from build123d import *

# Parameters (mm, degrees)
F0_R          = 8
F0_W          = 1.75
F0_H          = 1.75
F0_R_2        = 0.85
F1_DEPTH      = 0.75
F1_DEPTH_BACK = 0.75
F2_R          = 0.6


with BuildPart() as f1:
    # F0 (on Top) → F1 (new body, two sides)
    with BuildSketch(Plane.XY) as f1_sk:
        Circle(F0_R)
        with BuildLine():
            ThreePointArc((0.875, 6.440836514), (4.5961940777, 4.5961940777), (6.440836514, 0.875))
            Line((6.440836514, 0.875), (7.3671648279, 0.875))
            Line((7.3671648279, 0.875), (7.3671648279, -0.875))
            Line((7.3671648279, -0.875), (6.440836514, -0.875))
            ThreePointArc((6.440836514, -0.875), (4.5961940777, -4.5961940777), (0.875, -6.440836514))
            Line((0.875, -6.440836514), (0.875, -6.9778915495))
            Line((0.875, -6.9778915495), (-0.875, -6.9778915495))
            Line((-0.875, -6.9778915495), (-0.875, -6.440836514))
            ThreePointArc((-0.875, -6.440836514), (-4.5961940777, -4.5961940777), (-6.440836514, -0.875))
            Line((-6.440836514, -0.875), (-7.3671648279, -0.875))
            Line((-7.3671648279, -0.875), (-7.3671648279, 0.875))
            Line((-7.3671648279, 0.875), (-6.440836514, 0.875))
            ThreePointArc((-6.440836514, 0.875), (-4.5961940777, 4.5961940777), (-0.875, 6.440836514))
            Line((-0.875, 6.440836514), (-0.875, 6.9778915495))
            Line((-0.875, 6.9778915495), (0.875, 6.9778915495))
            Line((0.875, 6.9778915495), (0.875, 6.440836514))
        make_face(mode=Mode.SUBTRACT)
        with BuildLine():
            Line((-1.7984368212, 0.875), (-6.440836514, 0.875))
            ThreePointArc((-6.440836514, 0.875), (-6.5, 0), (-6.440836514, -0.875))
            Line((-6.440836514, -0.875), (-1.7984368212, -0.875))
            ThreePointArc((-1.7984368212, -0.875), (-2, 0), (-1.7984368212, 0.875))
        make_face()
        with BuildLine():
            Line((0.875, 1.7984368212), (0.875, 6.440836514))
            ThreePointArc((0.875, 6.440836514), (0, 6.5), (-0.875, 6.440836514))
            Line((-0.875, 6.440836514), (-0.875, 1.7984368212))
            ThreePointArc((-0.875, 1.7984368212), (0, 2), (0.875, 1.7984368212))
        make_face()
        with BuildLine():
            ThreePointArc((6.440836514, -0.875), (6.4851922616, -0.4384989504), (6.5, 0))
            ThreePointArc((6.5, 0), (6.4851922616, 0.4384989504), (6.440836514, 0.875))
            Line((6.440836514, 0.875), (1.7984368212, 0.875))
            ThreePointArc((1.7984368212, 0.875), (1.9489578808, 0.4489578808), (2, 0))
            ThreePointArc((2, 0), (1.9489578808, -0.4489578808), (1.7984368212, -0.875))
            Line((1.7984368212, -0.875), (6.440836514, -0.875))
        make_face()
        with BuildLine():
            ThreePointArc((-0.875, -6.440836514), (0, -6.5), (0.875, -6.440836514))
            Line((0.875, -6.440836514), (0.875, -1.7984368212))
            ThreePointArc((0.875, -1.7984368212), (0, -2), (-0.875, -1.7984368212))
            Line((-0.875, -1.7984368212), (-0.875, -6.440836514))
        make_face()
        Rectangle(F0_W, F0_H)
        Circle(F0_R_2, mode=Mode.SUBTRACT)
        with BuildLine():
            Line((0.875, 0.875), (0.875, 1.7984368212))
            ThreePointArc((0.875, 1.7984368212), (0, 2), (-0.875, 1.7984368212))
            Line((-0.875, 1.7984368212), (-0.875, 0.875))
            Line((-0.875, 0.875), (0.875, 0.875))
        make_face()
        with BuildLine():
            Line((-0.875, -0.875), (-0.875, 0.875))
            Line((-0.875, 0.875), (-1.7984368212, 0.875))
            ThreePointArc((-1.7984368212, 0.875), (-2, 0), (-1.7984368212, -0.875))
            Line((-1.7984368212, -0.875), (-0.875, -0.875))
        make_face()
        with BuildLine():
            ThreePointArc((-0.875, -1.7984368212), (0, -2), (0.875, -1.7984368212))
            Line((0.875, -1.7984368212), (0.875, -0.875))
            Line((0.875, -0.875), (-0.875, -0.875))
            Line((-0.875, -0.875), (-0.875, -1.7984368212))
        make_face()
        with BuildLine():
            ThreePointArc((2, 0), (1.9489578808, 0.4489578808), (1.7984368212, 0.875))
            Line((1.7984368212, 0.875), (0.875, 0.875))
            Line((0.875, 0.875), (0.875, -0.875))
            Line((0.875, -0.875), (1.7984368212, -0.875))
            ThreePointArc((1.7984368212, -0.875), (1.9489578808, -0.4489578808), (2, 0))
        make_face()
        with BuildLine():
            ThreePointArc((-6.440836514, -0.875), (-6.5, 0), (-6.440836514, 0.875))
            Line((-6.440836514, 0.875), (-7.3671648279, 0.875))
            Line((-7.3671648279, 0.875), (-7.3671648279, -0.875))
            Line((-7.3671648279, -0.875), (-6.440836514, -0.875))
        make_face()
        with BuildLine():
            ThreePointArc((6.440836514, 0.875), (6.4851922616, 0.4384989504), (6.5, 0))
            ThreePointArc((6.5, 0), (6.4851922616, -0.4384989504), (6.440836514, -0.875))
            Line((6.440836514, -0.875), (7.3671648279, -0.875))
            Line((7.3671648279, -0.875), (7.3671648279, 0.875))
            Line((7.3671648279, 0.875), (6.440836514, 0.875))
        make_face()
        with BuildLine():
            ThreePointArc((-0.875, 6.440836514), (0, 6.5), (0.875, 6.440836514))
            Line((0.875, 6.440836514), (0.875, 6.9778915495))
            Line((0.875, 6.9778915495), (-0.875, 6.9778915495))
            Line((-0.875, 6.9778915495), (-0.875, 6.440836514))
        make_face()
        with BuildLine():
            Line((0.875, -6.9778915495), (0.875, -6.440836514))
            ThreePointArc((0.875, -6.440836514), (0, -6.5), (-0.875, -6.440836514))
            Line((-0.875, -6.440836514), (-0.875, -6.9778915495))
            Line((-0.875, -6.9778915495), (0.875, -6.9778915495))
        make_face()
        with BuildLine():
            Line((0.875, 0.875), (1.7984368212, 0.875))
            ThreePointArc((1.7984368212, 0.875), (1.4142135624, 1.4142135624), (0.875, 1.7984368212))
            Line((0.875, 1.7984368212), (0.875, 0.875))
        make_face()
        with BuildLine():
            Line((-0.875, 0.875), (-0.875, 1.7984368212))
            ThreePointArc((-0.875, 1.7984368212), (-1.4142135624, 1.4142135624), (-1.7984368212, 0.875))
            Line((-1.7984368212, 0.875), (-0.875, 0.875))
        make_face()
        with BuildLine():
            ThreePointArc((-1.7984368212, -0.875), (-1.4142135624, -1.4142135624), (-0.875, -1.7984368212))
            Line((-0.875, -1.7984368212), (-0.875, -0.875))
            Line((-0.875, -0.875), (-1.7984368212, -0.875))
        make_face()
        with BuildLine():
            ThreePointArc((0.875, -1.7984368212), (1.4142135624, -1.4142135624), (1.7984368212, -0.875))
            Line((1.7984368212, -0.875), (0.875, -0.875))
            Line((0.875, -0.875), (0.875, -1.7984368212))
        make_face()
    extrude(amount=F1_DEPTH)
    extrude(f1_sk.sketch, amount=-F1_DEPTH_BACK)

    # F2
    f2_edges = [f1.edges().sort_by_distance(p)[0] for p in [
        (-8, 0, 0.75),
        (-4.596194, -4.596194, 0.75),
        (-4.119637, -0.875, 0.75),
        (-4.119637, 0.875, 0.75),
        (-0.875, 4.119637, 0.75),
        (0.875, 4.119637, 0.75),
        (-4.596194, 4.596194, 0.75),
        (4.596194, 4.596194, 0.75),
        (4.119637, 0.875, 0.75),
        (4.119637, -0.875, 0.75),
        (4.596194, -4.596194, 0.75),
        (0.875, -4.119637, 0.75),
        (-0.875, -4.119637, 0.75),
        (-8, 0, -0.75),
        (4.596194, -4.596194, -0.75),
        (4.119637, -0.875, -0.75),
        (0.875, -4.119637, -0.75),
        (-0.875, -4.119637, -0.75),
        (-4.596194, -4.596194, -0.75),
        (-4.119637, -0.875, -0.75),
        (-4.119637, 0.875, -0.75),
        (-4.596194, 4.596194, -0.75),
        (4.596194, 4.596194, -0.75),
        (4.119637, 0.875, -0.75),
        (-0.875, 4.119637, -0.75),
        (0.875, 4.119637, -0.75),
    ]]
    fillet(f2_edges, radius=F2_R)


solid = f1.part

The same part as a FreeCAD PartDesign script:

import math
import FreeCAD as App
import Part
import Sketcher


def edges_at(feature, points):
    """Names of the edges that pass closest to the given points."""
    edges = feature.Shape.Edges
    near = lambda p: min(range(len(edges)), key=lambda i: edges[i].distToShape(Part.Vertex(*p))[0])
    return sorted({f"Edge{near(p) + 1}" for p in points})

doc = App.newDocument("Part")
params = doc.addObject("Spreadsheet::Sheet", "Params")
for row, (alias, value) in enumerate([
    ("sketch1_diameter", "16 mm"),
    ("sketch1_radius", "2 mm"),
    ("sketch1_diameter2", "1.7 mm"),
    ("sketch1_radius2", "6.5 mm"),
    ("pad1_length", "0.75 mm"),
    ("pad1_length2", "0.75 mm"),
    ("fillet_radius", "0.6 mm"),
], start=1):
    params.set(f"A{row}", alias)
    params.set(f"B{row}", "=" + value)
    params.setAlias(f"B{row}", alias)

body = doc.addObject("PartDesign::Body", "Body")

# Sketch on XY plane
sketch1 = body.newObject("Sketcher::SketchObject", "Sketch")
sketch1.AttachmentSupport = (doc.getObject("XY_Plane"), [""])
sketch1.MapMode = "FlatFace"
sketch1.addGeometry(Part.Circle(App.Vector(0, 0, 0), App.Vector(0, 0, 1), 8), False)
sketch1.addGeometry(Part.LineSegment(App.Vector(-0.9, -1.8, 0), App.Vector(-0.9, -6.4, 0)), False)
sketch1.addGeometry(Part.ArcOfCircle(Part.Circle(App.Vector(0, 0, 0), App.Vector(0, 0, 1), 6.5), math.radians(-172), math.radians(-98)), False)
sketch1.addGeometry(Part.LineSegment(App.Vector(-6.4, -0.9, 0), App.Vector(-1.8, -0.9, 0)), False)
sketch1.addGeometry(Part.ArcOfCircle(Part.Circle(App.Vector(0, 0, 0), App.Vector(0, 0, 1), 2), math.radians(-154), math.radians(-116)), False)
sketch1.addGeometry(Part.ArcOfCircle(Part.Circle(App.Vector(0, 0, 0), App.Vector(0, 0, 1), 6.5), math.radians(-82), math.radians(-8)), False)
sketch1.addGeometry(Part.LineSegment(App.Vector(0.9, -6.4, 0), App.Vector(0.9, -1.8, 0)), False)
sketch1.addGeometry(Part.ArcOfCircle(Part.Circle(App.Vector(0, 0, 0), App.Vector(0, 0, 1), 2), math.radians(-64), math.radians(-26)), False)
sketch1.addGeometry(Part.LineSegment(App.Vector(1.8, -0.9, 0), App.Vector(6.4, -0.9, 0)), False)
sketch1.addGeometry(Part.ArcOfCircle(Part.Circle(App.Vector(0, 0, 0), App.Vector(0, 0, 1), 6.5), math.radians(98), math.radians(172)), False)
sketch1.addGeometry(Part.LineSegment(App.Vector(-0.9, 6.4, 0), App.Vector(-0.9, 1.8, 0)), False)
sketch1.addGeometry(Part.ArcOfCircle(Part.Circle(App.Vector(0, 0, 0), App.Vector(0, 0, 1), 2), math.radians(116), math.radians(154)), False)
sketch1.addGeometry(Part.LineSegment(App.Vector(-1.8, 0.9, 0), App.Vector(-6.4, 0.9, 0)), False)
sketch1.addGeometry(Part.Circle(App.Vector(0, 0, 0), App.Vector(0, 0, 1), 0.8), False)
sketch1.addGeometry(Part.LineSegment(App.Vector(0.9, 1.8, 0), App.Vector(0.9, 6.4, 0)), False)
sketch1.addGeometry(Part.ArcOfCircle(Part.Circle(App.Vector(0, 0, 0), App.Vector(0, 0, 1), 6.5), math.radians(8), math.radians(82)), False)
sketch1.addGeometry(Part.LineSegment(App.Vector(6.4, 0.9, 0), App.Vector(1.8, 0.9, 0)), False)
sketch1.addGeometry(Part.ArcOfCircle(Part.Circle(App.Vector(0, 0, 0), App.Vector(0, 0, 1), 2), math.radians(26), math.radians(64)), False)
sketch1.addConstraint(Sketcher.Constraint("Coincident", 1, 2, 2, 2))
sketch1.addConstraint(Sketcher.Constraint("Coincident", 2, 1, 3, 1))
sketch1.addConstraint(Sketcher.Constraint("Coincident", 3, 2, 4, 1))
sketch1.addConstraint(Sketcher.Constraint("Coincident", 4, 2, 1, 1))
sketch1.addConstraint(Sketcher.Constraint("Coincident", 5, 1, 6, 1))
sketch1.addConstraint(Sketcher.Constraint("Coincident", 6, 2, 7, 1))
sketch1.addConstraint(Sketcher.Constraint("Coincident", 7, 2, 8, 1))
sketch1.addConstraint(Sketcher.Constraint("Coincident", 8, 2, 5, 2))
sketch1.addConstraint(Sketcher.Constraint("Coincident", 9, 1, 10, 1))
sketch1.addConstraint(Sketcher.Constraint("Coincident", 10, 2, 11, 1))
sketch1.addConstraint(Sketcher.Constraint("Coincident", 11, 2, 12, 1))
sketch1.addConstraint(Sketcher.Constraint("Coincident", 12, 2, 9, 2))
sketch1.addConstraint(Sketcher.Constraint("Coincident", 14, 2, 15, 2))
sketch1.addConstraint(Sketcher.Constraint("Coincident", 15, 1, 16, 1))
sketch1.addConstraint(Sketcher.Constraint("Coincident", 16, 2, 17, 1))
sketch1.addConstraint(Sketcher.Constraint("Coincident", 17, 2, 14, 1))
sketch1.addConstraint(Sketcher.Constraint("Vertical", 1))
sketch1.addConstraint(Sketcher.Constraint("Horizontal", 3))
sketch1.addConstraint(Sketcher.Constraint("Vertical", 6))
sketch1.addConstraint(Sketcher.Constraint("Horizontal", 8))
sketch1.addConstraint(Sketcher.Constraint("Vertical", 10))
sketch1.addConstraint(Sketcher.Constraint("Horizontal", 12))
sketch1.addConstraint(Sketcher.Constraint("Vertical", 14))
sketch1.addConstraint(Sketcher.Constraint("Horizontal", 16))
sketch1.addConstraint(Sketcher.Constraint("Coincident", 0, 3, -1, 1))
sketch1.addConstraint(Sketcher.Constraint("Coincident", 2, 3, -1, 1))
sketch1.addConstraint(Sketcher.Constraint("Coincident", 4, 3, -1, 1))
sketch1.addConstraint(Sketcher.Constraint("Coincident", 5, 3, -1, 1))
sketch1.addConstraint(Sketcher.Constraint("Coincident", 7, 3, -1, 1))
sketch1.addConstraint(Sketcher.Constraint("Coincident", 9, 3, -1, 1))
sketch1.addConstraint(Sketcher.Constraint("Coincident", 11, 3, -1, 1))
sketch1.addConstraint(Sketcher.Constraint("Coincident", 13, 3, -1, 1))
sketch1.addConstraint(Sketcher.Constraint("Coincident", 15, 3, -1, 1))
sketch1.addConstraint(Sketcher.Constraint("Coincident", 17, 3, -1, 1))
sketch1.addConstraint(Sketcher.Constraint("Equal", 2, 5))
sketch1.addConstraint(Sketcher.Constraint("Equal", 4, 7))
sketch1.addConstraint(Sketcher.Constraint("Equal", 5, 9))
sketch1.addConstraint(Sketcher.Constraint("Equal", 7, 11))
sketch1.addConstraint(Sketcher.Constraint("Equal", 9, 15))
sketch1.addConstraint(Sketcher.Constraint("Equal", 11, 17))
sketch1.addConstraint(Sketcher.Constraint("Horizontal", 1, 2, 5, 1))
sketch1.addConstraint(Sketcher.Constraint("Horizontal", 3, 2, 7, 2))
sketch1.addConstraint(Sketcher.Constraint("Horizontal", 9, 1, 14, 2))
sketch1.addConstraint(Sketcher.Constraint("Horizontal", 12, 2, 15, 1))
sketch1.addConstraint(Sketcher.Constraint("Vertical", 4, 2, 9, 1))
sketch1.addConstraint(Sketcher.Constraint("Vertical", 3, 2, 11, 2))
sketch1.addConstraint(Sketcher.Constraint("Equal", 16, 1))
sketch1.addConstraint(Sketcher.Constraint("Diameter", 0, 16.0))
sketch1.addConstraint(Sketcher.Constraint("Radius", 4, 2.0))
sketch1.addConstraint(Sketcher.Constraint("Diameter", 13, 1.7))
sketch1.addConstraint(Sketcher.Constraint("Radius", 2, 6.5))
sketch1.addConstraint(Sketcher.Constraint("DistanceX", 1, 2, 5, 1, 1.75))
sketch1.setExpression("Constraints[47]", "Params.sketch1_diameter")
sketch1.setExpression("Constraints[48]", "Params.sketch1_radius")
sketch1.setExpression("Constraints[49]", "Params.sketch1_diameter2")
sketch1.setExpression("Constraints[50]", "Params.sketch1_radius2")
pad1 = body.newObject("PartDesign::Pad", "Pad")
pad1.Profile = sketch1
pad1.Type = "TwoLengths"
pad1.setExpression("Length", "Params.pad1_length")
pad1.setExpression("Length2", "Params.pad1_length2")
doc.recompute()

fillet = body.newObject("PartDesign::Fillet", "Fillet")
fillet.Base = (pad1, edges_at(pad1, [
    (-8, 0, 0.75),
    (-4.596, -4.596, 0.75),
    (-4.12, -0.875, 0.75),
    (-4.12, 0.875, 0.75),
    (-0.875, 4.12, 0.75),
    (0.875, 4.12, 0.75),
    (-4.596, 4.596, 0.75),
    (4.596, 4.596, 0.75),
    (4.12, 0.875, 0.75),
    (4.12, -0.875, 0.75),
    (4.596, -4.596, 0.75),
    (0.875, -4.12, 0.75),
    (-0.875, -4.12, 0.75),
    (-8, 0, -0.75),
    (4.596, -4.596, -0.75),
    (4.12, -0.875, -0.75),
    (0.875, -4.12, -0.75),
    (-0.875, -4.12, -0.75),
    (-4.596, -4.596, -0.75),
    (-4.12, -0.875, -0.75),
    (-4.12, 0.875, -0.75),
    (-4.596, 4.596, -0.75),
    (4.596, 4.596, -0.75),
    (4.12, 0.875, -0.75),
    (-0.875, 4.12, -0.75),
    (0.875, 4.12, -0.75),
]))
fillet.setExpression("Radius", "Params.fillet_radius")

doc.recompute()
